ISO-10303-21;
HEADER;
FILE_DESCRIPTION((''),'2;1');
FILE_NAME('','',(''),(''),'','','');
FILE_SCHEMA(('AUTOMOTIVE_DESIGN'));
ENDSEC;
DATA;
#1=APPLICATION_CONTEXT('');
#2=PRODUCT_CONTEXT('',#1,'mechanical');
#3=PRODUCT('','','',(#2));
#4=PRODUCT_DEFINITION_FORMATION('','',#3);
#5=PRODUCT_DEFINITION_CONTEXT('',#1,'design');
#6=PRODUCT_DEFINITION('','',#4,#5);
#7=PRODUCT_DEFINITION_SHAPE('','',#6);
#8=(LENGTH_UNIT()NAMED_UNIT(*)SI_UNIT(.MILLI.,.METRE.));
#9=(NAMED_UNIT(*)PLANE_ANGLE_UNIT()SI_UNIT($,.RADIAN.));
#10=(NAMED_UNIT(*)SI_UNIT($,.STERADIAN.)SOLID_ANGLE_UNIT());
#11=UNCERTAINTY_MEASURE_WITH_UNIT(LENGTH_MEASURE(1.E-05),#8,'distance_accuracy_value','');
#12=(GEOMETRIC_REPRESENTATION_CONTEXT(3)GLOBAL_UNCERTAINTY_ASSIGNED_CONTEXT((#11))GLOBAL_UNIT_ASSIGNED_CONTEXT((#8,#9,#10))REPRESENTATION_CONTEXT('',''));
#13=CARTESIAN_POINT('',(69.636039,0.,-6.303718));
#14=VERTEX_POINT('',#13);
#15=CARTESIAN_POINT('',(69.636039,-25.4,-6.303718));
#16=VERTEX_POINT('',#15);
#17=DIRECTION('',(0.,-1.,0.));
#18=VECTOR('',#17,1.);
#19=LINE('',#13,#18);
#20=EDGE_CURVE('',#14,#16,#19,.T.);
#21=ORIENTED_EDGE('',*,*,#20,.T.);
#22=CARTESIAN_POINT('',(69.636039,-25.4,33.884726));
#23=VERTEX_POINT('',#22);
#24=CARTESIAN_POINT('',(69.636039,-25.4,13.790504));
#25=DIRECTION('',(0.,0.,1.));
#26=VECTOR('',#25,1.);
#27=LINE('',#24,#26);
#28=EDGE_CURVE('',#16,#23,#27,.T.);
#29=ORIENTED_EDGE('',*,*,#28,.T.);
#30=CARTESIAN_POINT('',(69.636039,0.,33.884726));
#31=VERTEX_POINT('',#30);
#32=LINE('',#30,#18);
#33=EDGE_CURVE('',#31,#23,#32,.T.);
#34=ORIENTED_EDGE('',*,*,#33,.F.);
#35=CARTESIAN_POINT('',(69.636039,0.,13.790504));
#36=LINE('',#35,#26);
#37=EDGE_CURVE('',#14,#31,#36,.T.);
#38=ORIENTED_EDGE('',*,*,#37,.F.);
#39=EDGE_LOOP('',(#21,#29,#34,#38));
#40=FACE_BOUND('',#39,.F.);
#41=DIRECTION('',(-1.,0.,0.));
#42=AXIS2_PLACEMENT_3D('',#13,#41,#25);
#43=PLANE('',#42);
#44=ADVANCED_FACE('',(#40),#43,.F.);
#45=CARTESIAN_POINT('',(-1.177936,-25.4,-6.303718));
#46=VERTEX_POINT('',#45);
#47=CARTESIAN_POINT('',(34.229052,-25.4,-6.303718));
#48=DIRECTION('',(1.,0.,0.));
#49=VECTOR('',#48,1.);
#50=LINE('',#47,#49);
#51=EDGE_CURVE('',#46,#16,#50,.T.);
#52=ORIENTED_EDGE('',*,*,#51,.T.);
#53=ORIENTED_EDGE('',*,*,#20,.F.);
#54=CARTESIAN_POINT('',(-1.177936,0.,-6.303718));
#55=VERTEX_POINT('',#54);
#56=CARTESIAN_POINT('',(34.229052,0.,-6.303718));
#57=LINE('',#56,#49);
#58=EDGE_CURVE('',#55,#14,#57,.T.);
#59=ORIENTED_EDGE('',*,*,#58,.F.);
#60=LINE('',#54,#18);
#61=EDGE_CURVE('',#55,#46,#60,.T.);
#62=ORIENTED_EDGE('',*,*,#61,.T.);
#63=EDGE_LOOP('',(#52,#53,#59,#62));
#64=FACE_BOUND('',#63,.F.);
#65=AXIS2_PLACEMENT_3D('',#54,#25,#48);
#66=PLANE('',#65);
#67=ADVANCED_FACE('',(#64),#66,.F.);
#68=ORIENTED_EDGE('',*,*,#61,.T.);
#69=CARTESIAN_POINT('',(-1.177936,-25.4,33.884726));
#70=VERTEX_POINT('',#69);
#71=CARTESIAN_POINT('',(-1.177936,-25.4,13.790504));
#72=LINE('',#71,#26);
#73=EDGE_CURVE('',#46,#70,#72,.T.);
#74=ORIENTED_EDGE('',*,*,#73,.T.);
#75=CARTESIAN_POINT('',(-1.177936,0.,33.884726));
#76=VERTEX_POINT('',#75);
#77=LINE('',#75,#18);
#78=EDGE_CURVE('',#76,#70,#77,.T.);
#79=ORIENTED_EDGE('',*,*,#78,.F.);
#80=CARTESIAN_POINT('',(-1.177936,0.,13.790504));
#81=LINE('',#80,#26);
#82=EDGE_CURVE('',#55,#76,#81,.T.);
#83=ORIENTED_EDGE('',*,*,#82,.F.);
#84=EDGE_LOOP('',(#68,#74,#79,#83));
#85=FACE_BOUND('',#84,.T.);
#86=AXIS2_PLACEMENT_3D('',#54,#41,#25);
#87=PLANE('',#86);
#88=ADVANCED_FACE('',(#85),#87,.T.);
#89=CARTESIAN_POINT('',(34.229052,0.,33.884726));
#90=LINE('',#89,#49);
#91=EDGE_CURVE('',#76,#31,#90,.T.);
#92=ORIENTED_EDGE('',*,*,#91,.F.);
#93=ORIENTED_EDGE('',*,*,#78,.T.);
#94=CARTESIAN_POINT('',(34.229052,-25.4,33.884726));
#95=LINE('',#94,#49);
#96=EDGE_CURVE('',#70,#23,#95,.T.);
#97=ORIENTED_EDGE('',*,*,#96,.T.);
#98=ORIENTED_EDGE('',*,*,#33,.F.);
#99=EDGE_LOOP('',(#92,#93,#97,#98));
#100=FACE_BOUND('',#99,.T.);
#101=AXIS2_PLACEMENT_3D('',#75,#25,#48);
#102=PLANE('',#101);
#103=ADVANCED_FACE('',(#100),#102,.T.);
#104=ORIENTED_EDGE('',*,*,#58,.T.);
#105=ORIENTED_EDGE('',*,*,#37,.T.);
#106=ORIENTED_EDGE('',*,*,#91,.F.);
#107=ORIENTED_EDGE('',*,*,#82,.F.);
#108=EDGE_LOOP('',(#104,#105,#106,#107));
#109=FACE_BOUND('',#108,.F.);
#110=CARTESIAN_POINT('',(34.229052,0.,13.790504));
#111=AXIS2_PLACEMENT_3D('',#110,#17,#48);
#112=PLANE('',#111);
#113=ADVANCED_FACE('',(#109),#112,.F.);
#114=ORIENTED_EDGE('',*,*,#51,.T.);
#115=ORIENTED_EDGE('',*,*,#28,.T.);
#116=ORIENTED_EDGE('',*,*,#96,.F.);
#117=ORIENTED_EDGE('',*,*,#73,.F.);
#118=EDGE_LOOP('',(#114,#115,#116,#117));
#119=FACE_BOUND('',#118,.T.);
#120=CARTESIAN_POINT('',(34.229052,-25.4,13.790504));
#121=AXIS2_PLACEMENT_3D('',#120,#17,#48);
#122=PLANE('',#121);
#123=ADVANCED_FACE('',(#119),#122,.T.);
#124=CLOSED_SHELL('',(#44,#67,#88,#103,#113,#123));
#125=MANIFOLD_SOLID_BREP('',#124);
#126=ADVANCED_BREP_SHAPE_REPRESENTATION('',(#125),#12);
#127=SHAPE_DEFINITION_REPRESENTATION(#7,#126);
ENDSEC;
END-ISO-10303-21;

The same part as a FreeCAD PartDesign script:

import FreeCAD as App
import Part
import Sketcher
from FreeCAD import Vector
Q = App.Units.Quantity

doc = App.newDocument("Part")
body = doc.addObject("PartDesign::Body", "Body")

# Sketch on XZ plane
sketch1 = doc.addObject("Sketcher::SketchObject", "Sketch")
body.addObject(sketch1)
sketch1.AttachmentSupport = (doc.XZ_Plane, [""])
sketch1.MapMode = "FlatFace"
sketch1.addGeometry([
    Part.LineSegment(Vector(-1.177936, 33.884726, 0), Vector(-1.177936, -6.303718, 0)),
    Part.LineSegment(Vector(-1.177936, -6.303718, 0), Vector(69.636039, -6.303718, 0)),
    Part.LineSegment(Vector(69.636039, -6.303718, 0), Vector(69.636039, 33.884726, 0)),
    Part.LineSegment(Vector(69.636039, 33.884726, 0), Vector(-1.177936, 33.884726, 0)),
], False)
sketch1.addConstraint([
    Sketcher.Constraint("Coincident", 0, 2, 1, 1),
    Sketcher.Constraint("Coincident", 1, 2, 2, 1),
    Sketcher.Constraint("Coincident", 2, 2, 3, 1),
    Sketcher.Constraint("Coincident", 3, 2, 0, 1),
    Sketcher.Constraint("Vertical", 0),
    Sketcher.Constraint("Horizontal", 1),
    Sketcher.Constraint("Vertical", 2),
    Sketcher.Constraint("Horizontal", 3),
    Sketcher.Constraint("DistanceX", 1, 1, 1, 2, 70.813976),
    Sketcher.Constraint("DistanceY", 0, 2, 0, 1, 40.188445),
    Sketcher.Constraint("DistanceY", 0, 2, -1, 1, 6.303718),
    Sketcher.Constraint("DistanceX", -1, 1, 1, 2, 69.636039),
])
pad1 = doc.addObject("PartDesign::Pad", "Pad")
body.addObject(pad1)
pad1.Profile = sketch1
pad1.Length = Q("1 in")

doc.recompute()
